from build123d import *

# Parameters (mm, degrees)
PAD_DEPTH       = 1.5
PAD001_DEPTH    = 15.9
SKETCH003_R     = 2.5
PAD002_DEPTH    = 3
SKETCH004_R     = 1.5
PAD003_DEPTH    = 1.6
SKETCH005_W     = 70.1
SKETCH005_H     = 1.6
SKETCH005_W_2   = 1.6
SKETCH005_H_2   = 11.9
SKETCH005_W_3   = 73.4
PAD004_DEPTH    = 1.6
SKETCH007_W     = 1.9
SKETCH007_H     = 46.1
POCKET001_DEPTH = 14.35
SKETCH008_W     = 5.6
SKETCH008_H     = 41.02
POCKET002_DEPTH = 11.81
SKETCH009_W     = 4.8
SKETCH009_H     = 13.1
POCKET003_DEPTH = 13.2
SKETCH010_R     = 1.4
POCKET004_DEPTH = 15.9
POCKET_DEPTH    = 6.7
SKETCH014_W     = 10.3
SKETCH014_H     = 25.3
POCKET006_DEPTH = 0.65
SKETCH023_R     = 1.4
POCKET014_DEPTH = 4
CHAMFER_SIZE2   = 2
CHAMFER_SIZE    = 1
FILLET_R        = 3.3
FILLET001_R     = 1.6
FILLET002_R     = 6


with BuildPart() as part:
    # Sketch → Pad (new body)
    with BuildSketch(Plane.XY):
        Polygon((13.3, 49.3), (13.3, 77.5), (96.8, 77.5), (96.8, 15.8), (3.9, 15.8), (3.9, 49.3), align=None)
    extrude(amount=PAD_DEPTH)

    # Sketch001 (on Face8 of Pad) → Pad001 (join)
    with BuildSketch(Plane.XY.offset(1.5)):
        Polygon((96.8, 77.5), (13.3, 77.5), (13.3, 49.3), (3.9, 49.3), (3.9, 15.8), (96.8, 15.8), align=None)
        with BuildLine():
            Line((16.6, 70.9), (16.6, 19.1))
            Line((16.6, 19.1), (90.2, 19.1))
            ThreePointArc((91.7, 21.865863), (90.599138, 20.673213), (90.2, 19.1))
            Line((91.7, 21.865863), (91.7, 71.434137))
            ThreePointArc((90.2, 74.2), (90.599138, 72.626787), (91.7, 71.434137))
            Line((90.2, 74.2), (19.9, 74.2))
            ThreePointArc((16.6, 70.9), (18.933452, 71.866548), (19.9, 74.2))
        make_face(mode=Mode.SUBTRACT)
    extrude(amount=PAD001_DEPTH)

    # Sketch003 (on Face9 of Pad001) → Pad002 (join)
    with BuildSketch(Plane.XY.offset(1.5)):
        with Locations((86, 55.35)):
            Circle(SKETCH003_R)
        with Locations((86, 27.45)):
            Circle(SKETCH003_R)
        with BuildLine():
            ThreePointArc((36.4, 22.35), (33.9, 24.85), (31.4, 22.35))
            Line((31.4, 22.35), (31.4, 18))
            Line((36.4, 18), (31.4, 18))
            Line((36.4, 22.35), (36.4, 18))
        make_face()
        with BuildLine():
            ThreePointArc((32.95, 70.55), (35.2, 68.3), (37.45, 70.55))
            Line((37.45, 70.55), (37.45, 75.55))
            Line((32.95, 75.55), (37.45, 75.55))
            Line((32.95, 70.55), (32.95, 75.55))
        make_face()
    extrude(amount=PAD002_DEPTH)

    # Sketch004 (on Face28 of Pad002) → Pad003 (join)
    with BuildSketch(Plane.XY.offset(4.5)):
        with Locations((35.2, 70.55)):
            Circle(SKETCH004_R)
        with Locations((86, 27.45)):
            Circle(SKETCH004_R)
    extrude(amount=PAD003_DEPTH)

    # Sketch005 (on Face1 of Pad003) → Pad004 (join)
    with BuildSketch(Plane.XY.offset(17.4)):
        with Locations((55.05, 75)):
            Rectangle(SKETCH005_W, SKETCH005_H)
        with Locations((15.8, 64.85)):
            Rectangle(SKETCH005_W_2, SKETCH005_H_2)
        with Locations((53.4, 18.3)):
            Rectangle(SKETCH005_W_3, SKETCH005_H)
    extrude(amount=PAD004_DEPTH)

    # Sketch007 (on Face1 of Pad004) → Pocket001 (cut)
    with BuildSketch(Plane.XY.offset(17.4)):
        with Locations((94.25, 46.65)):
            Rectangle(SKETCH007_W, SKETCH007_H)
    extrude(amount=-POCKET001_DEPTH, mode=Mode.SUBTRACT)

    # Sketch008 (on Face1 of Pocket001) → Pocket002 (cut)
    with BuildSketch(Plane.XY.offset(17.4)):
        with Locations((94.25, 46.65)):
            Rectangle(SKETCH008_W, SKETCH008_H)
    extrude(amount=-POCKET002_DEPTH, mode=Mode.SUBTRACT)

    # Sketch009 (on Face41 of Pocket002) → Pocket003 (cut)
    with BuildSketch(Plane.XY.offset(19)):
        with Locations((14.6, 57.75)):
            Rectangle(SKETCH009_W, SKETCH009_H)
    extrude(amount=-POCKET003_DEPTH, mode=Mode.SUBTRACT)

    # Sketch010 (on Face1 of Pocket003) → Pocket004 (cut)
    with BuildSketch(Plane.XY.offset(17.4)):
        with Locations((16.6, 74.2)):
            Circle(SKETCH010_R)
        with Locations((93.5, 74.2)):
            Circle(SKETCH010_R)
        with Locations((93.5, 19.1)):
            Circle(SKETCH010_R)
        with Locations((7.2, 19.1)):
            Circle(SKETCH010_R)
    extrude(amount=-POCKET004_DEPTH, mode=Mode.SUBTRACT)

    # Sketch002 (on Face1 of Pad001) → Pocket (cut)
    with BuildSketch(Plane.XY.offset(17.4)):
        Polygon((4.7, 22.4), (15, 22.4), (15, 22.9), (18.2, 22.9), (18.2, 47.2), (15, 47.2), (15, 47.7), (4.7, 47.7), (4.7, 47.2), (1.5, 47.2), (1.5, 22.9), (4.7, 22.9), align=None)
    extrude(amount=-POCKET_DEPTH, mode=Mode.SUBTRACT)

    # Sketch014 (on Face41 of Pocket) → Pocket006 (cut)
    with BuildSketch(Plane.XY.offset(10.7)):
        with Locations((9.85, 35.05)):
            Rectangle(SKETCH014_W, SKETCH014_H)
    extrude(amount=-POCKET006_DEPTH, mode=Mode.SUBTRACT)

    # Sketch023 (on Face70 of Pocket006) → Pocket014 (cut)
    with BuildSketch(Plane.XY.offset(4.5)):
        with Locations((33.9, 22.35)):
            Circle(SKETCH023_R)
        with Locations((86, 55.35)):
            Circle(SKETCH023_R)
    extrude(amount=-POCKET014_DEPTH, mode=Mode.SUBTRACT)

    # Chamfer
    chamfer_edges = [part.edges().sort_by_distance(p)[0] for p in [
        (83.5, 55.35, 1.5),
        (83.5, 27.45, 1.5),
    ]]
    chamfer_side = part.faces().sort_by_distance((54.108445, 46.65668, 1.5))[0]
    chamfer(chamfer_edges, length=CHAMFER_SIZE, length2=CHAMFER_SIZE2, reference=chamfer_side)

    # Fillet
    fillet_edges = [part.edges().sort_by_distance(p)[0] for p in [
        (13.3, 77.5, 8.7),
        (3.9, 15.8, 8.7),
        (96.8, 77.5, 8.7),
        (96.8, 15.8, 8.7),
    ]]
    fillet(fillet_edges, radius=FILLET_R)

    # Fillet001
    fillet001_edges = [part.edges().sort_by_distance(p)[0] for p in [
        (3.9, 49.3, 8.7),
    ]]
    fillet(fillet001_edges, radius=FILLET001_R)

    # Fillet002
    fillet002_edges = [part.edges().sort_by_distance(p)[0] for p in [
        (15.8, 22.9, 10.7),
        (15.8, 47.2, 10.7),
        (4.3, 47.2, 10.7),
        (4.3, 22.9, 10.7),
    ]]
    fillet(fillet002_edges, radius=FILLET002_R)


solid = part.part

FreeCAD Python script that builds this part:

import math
import FreeCAD as App
import Part
import Sketcher


def edges_at(feature, points):
    """Names of the edges that pass closest to the given points."""
    edges = feature.Shape.Edges
    near = lambda p: min(range(len(edges)), key=lambda i: edges[i].distToShape(Part.Vertex(*p))[0])
    return sorted({f"Edge{near(p) + 1}" for p in points})


def add_polygon(sketch, points):
    """Adds a closed chain of lines whose ends are joined by coincident constraints."""
    first, n = sketch.GeometryCount, len(points)
    for a, b in zip(points, points[1:] + points[:1]):
        sketch.addGeometry(Part.LineSegment(App.Vector(*a, 0), App.Vector(*b, 0)), False)
    for i in range(n):
        sketch.addConstraint(Sketcher.Constraint("Coincident", first + i, 2, first + (i + 1) % n, 1))

doc = App.newDocument("Part")
params = doc.addObject("Spreadsheet::Sheet", "Params")
for row, (alias, value) in enumerate([
    ("sketch1_width", "9.4 mm"),
    ("sketch1_width2", "92.9 mm"),
    ("sketch1_height", "28.2 mm"),
    ("sketch1_height2", "33.5 mm"),
    ("pad1_length", "1.5 mm"),
    ("sketch2_radius", "3.300001 mm"),
    ("sketch2_width", "83.5 mm"),
    ("sketch2_width2", "9.4 mm"),
    ("sketch2_width3", "70.3 mm"),
    ("sketch2_height", "28.2 mm"),
    ("pad2_length", "15.9 mm"),
    ("sketch3_diameter", "5 mm"),
    ("sketch3_radius", "2.25 mm"),
    ("sketch3_height", "4.35 mm"),
    ("pad3_length", "3 mm"),
    ("sketch4_diameter", "3 mm"),
    ("pad4_length", "1.6 mm"),
    ("sketch5_width", "70.1 mm"),
    ("sketch5_width2", "1.6 mm"),
    ("sketch5_width3", "73.4 mm"),
    ("sketch5_height", "11.9 mm"),
    ("pad5_length", "1.6 mm"),
    ("sketch6_width", "1.9 mm"),
    ("sketch6_height", "46.1 mm"),
    ("pocket1_length", "14.35 mm"),
    ("sketch7_width", "5.6 mm"),
    ("sketch7_height", "41.02 mm"),
    ("pocket2_length", "11.81 mm"),
    ("sketch8_width", "4.8 mm"),
    ("sketch8_height", "13.1 mm"),
    ("pocket3_length", "13.2 mm"),
    ("sketch9_diameter", "2.8 mm"),
    ("pocket4_length", "15.9 mm"),
    ("sketch10_width", "10.3 mm"),
    ("sketch10_width2", "3.2 mm"),
    ("sketch10_height", "0.5 mm"),
    ("sketch10_height2", "24.3 mm"),
    ("pocket5_length", "6.7 mm"),
    ("sketch11_width", "10.3 mm"),
    ("sketch11_height", "25.3 mm"),
    ("pocket6_length", "0.65 mm"),
    ("sketch12_diameter", "2.8 mm"),
    ("pocket7_length", "4 mm"),
    ("chamfer_size", "1 mm"),
    ("chamfer_size2", "2 mm"),
    ("fillet_radius", "3.3 mm"),
    ("fillet2_radius", "1.6 mm"),
    ("fillet3_radius", "6 mm"),
], start=1):
    params.set(f"A{row}", alias)
    params.set(f"B{row}", "=" + value)
    params.setAlias(f"B{row}", alias)

body = doc.addObject("PartDesign::Body", "Body")

# Sketch on XY plane
sketch1 = body.newObject("Sketcher::SketchObject", "Sketch")
sketch1.AttachmentSupport = (doc.getObject("XY_Plane"), [""])
sketch1.MapMode = "FlatFace"
add_polygon(sketch1, [(13, 78), (13, 49), (4, 49), (4, 16), (97, 16), (97, 78)])  # lines 0-5
sketch1.addConstraint(Sketcher.Constraint("Vertical", 0))
sketch1.addConstraint(Sketcher.Constraint("Horizontal", 1))
sketch1.addConstraint(Sketcher.Constraint("Vertical", 2))
sketch1.addConstraint(Sketcher.Constraint("Horizontal", 3))
sketch1.addConstraint(Sketcher.Constraint("Vertical", 4))
sketch1.addConstraint(Sketcher.Constraint("Horizontal", 5))
sketch1.addConstraint(Sketcher.Constraint("DistanceX", 1, 2, 1, 1, 9.4))
sketch1.addConstraint(Sketcher.Constraint("DistanceX", 3, 1, 3, 2, 92.9))
sketch1.addConstraint(Sketcher.Constraint("DistanceY", 0, 2, 0, 1, 28.2))
sketch1.addConstraint(Sketcher.Constraint("DistanceY", 2, 2, 2, 1, 33.5))
sketch1.addConstraint(Sketcher.Constraint("DistanceX", -1, 1, 0, 2, 13.3))
sketch1.addConstraint(Sketcher.Constraint("DistanceY", -1, 1, 0, 2, 49.3))
sketch1.setExpression("Constraints[12]", "Params.sketch1_width")
sketch1.setExpression("Constraints[13]", "Params.sketch1_width2")
sketch1.setExpression("Constraints[14]", "Params.sketch1_height")
sketch1.setExpression("Constraints[15]", "Params.sketch1_height2")
pad1 = body.newObject("PartDesign::Pad", "Pad")
pad1.Profile = sketch1
pad1.setExpression("Length", "Params.pad1_length")

# Sketch on XY plane
sketch2 = body.newObject("Sketcher::SketchObject", "Sketch001")
sketch2.AttachmentSupport = (doc.getObject("XY_Plane"), [""])
sketch2.MapMode = "FlatFace"
sketch2.AttachmentOffset = App.Placement(App.Vector(0, 0, 1.5), App.Rotation())
add_polygon(sketch2, [(96.8, 77.5), (13.3, 77.5), (13.3, 49.3), (3.9, 49.3), (3.9, 15.8), (96.8, 15.8)])  # lines 0-5
sketch2.addGeometry(Part.LineSegment(App.Vector(16.6, 19.1, 0), App.Vector(16.6, 70.9, 0)), False)  # 6
sketch2.addGeometry(Part.ArcOfCircle(Part.Circle(App.Vector(16.6, 74.2, 0), App.Vector(0, 0, 1), 3.3), math.radians(-90), math.radians(0)), False)  # 7
sketch2.addGeometry(Part.LineSegment(App.Vector(19.9, 74.2, 0), App.Vector(90.2, 74.2, 0)), False)  # 8
sketch2.addGeometry(Part.ArcOfCircle(Part.Circle(App.Vector(93.5, 74.2, 0), App.Vector(0, 0, 1), 3.3), math.radians(-180), math.radians(-123)), False)  # 9
sketch2.addGeometry(Part.LineSegment(App.Vector(91.7, 71.4, 0), App.Vector(91.7, 21.9, 0)), False)  # 10
sketch2.addGeometry(Part.ArcOfCircle(Part.Circle(App.Vector(93.5, 19.1, 0), App.Vector(0, 0, 1), 3.3), math.radians(123), math.radians(180)), False)  # 11
sketch2.addGeometry(Part.LineSegment(App.Vector(90.2, 19.1, 0), App.Vector(16.6, 19.1, 0)), False)  # 12
sketch2.addConstraint(Sketcher.Constraint("Coincident", 6, 2, 7, 1))
sketch2.addConstraint(Sketcher.Constraint("Coincident", 7, 2, 8, 1))
sketch2.addConstraint(Sketcher.Constraint("Coincident", 8, 2, 9, 1))
sketch2.addConstraint(Sketcher.Constraint("Coincident", 9, 2, 10, 1))
sketch2.addConstraint(Sketcher.Constraint("Coincident", 10, 2, 11, 1))
sketch2.addConstraint(Sketcher.Constraint("Coincident", 11, 2, 12, 1))
sketch2.addConstraint(Sketcher.Constraint("Coincident", 12, 2, 6, 1))
sketch2.addConstraint(Sketcher.Constraint("Horizontal", 0))
sketch2.addConstraint(Sketcher.Constraint("Vertical", 1))
sketch2.addConstraint(Sketcher.Constraint("Horizontal", 2))
sketch2.addConstraint(Sketcher.Constraint("Vertical", 3))
sketch2.addConstraint(Sketcher.Constraint("Horizontal", 4))
sketch2.addConstraint(Sketcher.Constraint("Vertical", 5))
sketch2.addConstraint(Sketcher.Constraint("Vertical", 6))
sketch2.addConstraint(Sketcher.Constraint("Horizontal", 8))
sketch2.addConstraint(Sketcher.Constraint("Vertical", 10))
sketch2.addConstraint(Sketcher.Constraint("Horizontal", 12))
sketch2.addConstraint(Sketcher.Constraint("Equal", 7, 9))
sketch2.addConstraint(Sketcher.Constraint("Equal", 9, 11))
sketch2.addConstraint(Sketcher.Constraint("Horizontal", 7, 3, 9, 3))
sketch2.addConstraint(Sketcher.Constraint("Horizontal", 9, 3, 7, 2))
sketch2.addConstraint(Sketcher.Constraint("Vertical", 9, 3, 11, 3))
sketch2.addConstraint(Sketcher.Constraint("Vertical", 7, 3, 6, 2))
sketch2.addConstraint(Sketcher.Constraint("Radius", 7, 3.300001))
sketch2.addConstraint(Sketcher.Constraint("DistanceX", 0, 2, 0, 1, 83.5))
sketch2.addConstraint(Sketcher.Constraint("DistanceX", 2, 2, 2, 1, 9.4))
sketch2.addConstraint(Sketcher.Constraint("DistanceX", 8, 1, 8, 2, 70.3))
sketch2.addConstraint(Sketcher.Constraint("DistanceY", 1, 2, 1, 1, 28.2))
sketch2.addConstraint(Sketcher.Constraint("DistanceY", 3, 2, 3, 1, 33.5))
sketch2.addConstraint(Sketcher.Constraint("DistanceY", 6, 1, 6, 2, 51.8))
sketch2.addConstraint(Sketcher.Constraint("DistanceX", 2, 2, 7, 2, 16.0))
sketch2.addConstraint(Sketcher.Constraint("DistanceX", -1, 1, 7, 3, 16.599999))
sketch2.addConstraint(Sketcher.Constraint("DistanceY", -1, 1, 7, 3, 74.200001))
sketch2.addConstraint(Sketcher.Constraint("DistanceY", -1, 1, 11, 3, 19.1))
sketch2.addConstraint(Sketcher.Constraint("DistanceY", -1, 1, 0, 2, 77.5))
sketch2.addConstraint(Sketcher.Constraint("DistanceX", -1, 1, 9, 2, 91.7))
sketch2.setExpression("Constraints[29]", "Params.sketch2_radius")
sketch2.setExpression("Constraints[30]", "Params.sketch2_width")
sketch2.setExpression("Constraints[31]", "Params.sketch2_width2")
sketch2.setExpression("Constraints[32]", "Params.sketch2_width3")
sketch2.setExpression("Constraints[33]", "Params.sketch2_height")
pad2 = body.newObject("PartDesign::Pad", "Pad001")
pad2.Profile = sketch2
pad2.setExpression("Length", "Params.pad2_length")

# Sketch on XY plane
sketch3 = body.newObject("Sketcher::SketchObject", "Sketch002")
sketch3.AttachmentSupport = (doc.getObject("XY_Plane"), [""])
sketch3.MapMode = "FlatFace"
sketch3.AttachmentOffset = App.Placement(App.Vector(0, 0, 1.5), App.Rotation())
sketch3.addGeometry(Part.Circle(App.Vector(86, 55.4, 0), App.Vector(0, 0, 1), 2.5), False)
sketch3.addGeometry(Part.Circle(App.Vector(86, 27.4, 0), App.Vector(0, 0, 1), 2.5), False)
sketch3.addGeometry(Part.ArcOfCircle(Part.Circle(App.Vector(33.9, 22.4, 0), App.Vector(0, 0, 1), 2.5), math.radians(0), math.radians(180)), False)
sketch3.addGeometry(Part.LineSegment(App.Vector(31.4, 22.4, 0), App.Vector(31.4, 18, 0)), False)
sketch3.addGeometry(Part.LineSegment(App.Vector(31.4, 18, 0), App.Vector(36.4, 18, 0)), False)
sketch3.addGeometry(Part.LineSegment(App.Vector(36.4, 18, 0), App.Vector(36.4, 22.4, 0)), False)
sketch3.addGeometry(Part.ArcOfCircle(Part.Circle(App.Vector(35.2, 70.5, 0), App.Vector(0, 0, 1), 2.2), math.radians(180), math.radians(360)), False)
sketch3.addGeometry(Part.LineSegment(App.Vector(37.5, 70.5, 0), App.Vector(37.5, 75.5, 0)), False)
sketch3.addGeometry(Part.LineSegment(App.Vector(37.5, 75.5, 0), App.Vector(33, 75.5, 0)), False)
sketch3.addGeometry(Part.LineSegment(App.Vector(33, 75.5, 0), App.Vector(33, 70.5, 0)), False)
sketch3.addConstraint(Sketcher.Constraint("Tangent", 2, 2, 3, 1))
sketch3.addConstraint(Sketcher.Constraint("Coincident", 3, 2, 4, 1))
sketch3.addConstraint(Sketcher.Constraint("Coincident", 4, 2, 5, 1))
sketch3.addConstraint(Sketcher.Constraint("Tangent", 5, 2, 2, 1))
sketch3.addConstraint(Sketcher.Constraint("Tangent", 6, 2, 7, 1))
sketch3.addConstraint(Sketcher.Constraint("Coincident", 7, 2, 8, 1))
sketch3.addConstraint(Sketcher.Constraint("Coincident", 8, 2, 9, 1))
sketch3.addConstraint(Sketcher.Constraint("Tangent", 9, 2, 6, 1))
sketch3.addConstraint(Sketcher.Constraint("Vertical", 3))
sketch3.addConstraint(Sketcher.Constraint("Horizontal", 4))
sketch3.addConstraint(Sketcher.Constraint("Vertical", 5))
sketch3.addConstraint(Sketcher.Constraint("Vertical", 7))
sketch3.addConstraint(Sketcher.Constraint("Horizontal", 8))
sketch3.addConstraint(Sketcher.Constraint("Vertical", 9))
sketch3.addConstraint(Sketcher.Constraint("Equal", 0, 1))
sketch3.addConstraint(Sketcher.Constraint("Equal", 1, 2))
sketch3.addConstraint(Sketcher.Constraint("Vertical", 0, 3, 1, 3))
sketch3.addConstraint(Sketcher.Constraint("Equal", 4, 7))
sketch3.addConstraint(Sketcher.Constraint("Diameter", 0, 5.0))
sketch3.addConstraint(Sketcher.Constraint("Radius", 6, 2.25))
sketch3.addConstraint(Sketcher.Constraint("DistanceX", -1, 1, 0, 3, 86.0))
sketch3.addConstraint(Sketcher.Constraint("DistanceY", -1, 1, 3, 2, 18.0))
sketch3.addConstraint(Sketcher.Constraint("DistanceY", 2, 3, 0, 3, 33.0))
sketch3.addConstraint(Sketcher.Constraint("DistanceY", 3, 2, 3, 1, 4.35))
sketch3.addConstraint(Sketcher.Constraint("DistanceX", -1, 1, 2, 3, 33.9))
sketch3.addConstraint(Sketcher.Constraint("DistanceX", -1, 1, 6, 3, 35.2))
sketch3.addConstraint(Sketcher.Constraint("DistanceY", 1, 3, 0, 3, 27.9))
sketch3.addConstraint(Sketcher.Constraint("DistanceY", 2, 3, 6, 3, 48.2))
sketch3.setExpression("Constraints[18]", "Params.sketch3_diameter")
sketch3.setExpression("Constraints[19]", "Params.sketch3_radius")
sketch3.setExpression("Constraints[23]", "Params.sketch3_height")
pad3 = body.newObject("PartDesign::Pad", "Pad002")
pad3.Profile = sketch3
pad3.setExpression("Length", "Params.pad3_length")

# Sketch on XY plane
sketch4 = body.newObject("Sketcher::SketchObject", "Sketch003")
sketch4.AttachmentSupport = (doc.getObject("XY_Plane"), [""])
sketch4.MapMode = "FlatFace"
sketch4.AttachmentOffset = App.Placement(App.Vector(0, 0, 4.5), App.Rotation())
sketch4.addGeometry(Part.Circle(App.Vector(35.2, 70.5, 0), App.Vector(0, 0, 1), 1.5), False)
sketch4.addGeometry(Part.Circle(App.Vector(86, 27.4, 0), App.Vector(0, 0, 1), 1.5), False)
sketch4.addConstraint(Sketcher.Constraint("Equal", 0, 1))
sketch4.addConstraint(Sketcher.Constraint("Diameter", 0, 3.0))
sketch4.addConstraint(Sketcher.Constraint("DistanceX", -1, 1, 1, 3, 86.0))
sketch4.addConstraint(Sketcher.Constraint("DistanceX", -1, 1, 0, 3, 35.2))
sketch4.addConstraint(Sketcher.Constraint("DistanceY", 1, 3, 0, 3, 43.1))
sketch4.addConstraint(Sketcher.Constraint("DistanceY", -1, 1, 0, 3, 70.55))
sketch4.setExpression("Constraints[1]", "Params.sketch4_diameter")
pad4 = body.newObject("PartDesign::Pad", "Pad003")
pad4.Profile = sketch4
pad4.setExpression("Length", "Params.pad4_length")

# Sketch on XY plane
sketch5 = body.newObject("Sketcher::SketchObject", "Sketch004")
sketch5.AttachmentSupport = (doc.getObject("XY_Plane"), [""])
sketch5.MapMode = "FlatFace"
sketch5.AttachmentOffset = App.Placement(App.Vector(0, 0, 17.4), App.Rotation())
add_polygon(sketch5, [(20, 75.8), (20, 74.2), (90.1, 74.2), (90.1, 75.8)])  # lines 0-3
add_polygon(sketch5, [(15, 70.8), (15, 58.9), (16.6, 58.9), (16.6, 70.8)])  # lines 4-7
add_polygon(sketch5, [(16.7, 19.1), (16.7, 17.5), (90.1, 17.5), (90.1, 19.1)])  # lines 8-11
sketch5.addConstraint(Sketcher.Constraint("Vertical", 0))
sketch5.addConstraint(Sketcher.Constraint("Horizontal", 1))
sketch5.addConstraint(Sketcher.Constraint("Vertical", 2))
sketch5.addConstraint(Sketcher.Constraint("Horizontal", 3))
sketch5.addConstraint(Sketcher.Constraint("Vertical", 4))
sketch5.addConstraint(Sketcher.Constraint("Horizontal", 5))
sketch5.addConstraint(Sketcher.Constraint("Vertical", 6))
sketch5.addConstraint(Sketcher.Constraint("Horizontal", 7))
sketch5.addConstraint(Sketcher.Constraint("Vertical", 8))
sketch5.addConstraint(Sketcher.Constraint("Horizontal", 9))
sketch5.addConstraint(Sketcher.Constraint("Vertical", 10))
sketch5.addConstraint(Sketcher.Constraint("Horizontal", 11))
sketch5.addConstraint(Sketcher.Constraint("Vertical", 2, 2, 9, 2))
sketch5.addConstraint(Sketcher.Constraint("Equal", 7, 0))
sketch5.addConstraint(Sketcher.Constraint("Equal", 2, 8))
sketch5.addConstraint(Sketcher.Constraint("DistanceX", 1, 1, 1, 2, 70.1))
sketch5.addConstraint(Sketcher.Constraint("DistanceX", 5, 1, 5, 2, 1.6))
sketch5.addConstraint(Sketcher.Constraint("DistanceX", 9, 1, 9, 2, 73.4))
sketch5.addConstraint(Sketcher.Constraint("DistanceY", 4, 2, 4, 1, 11.9))
sketch5.addConstraint(Sketcher.Constraint("DistanceX", -1, 1, 0, 2, 20.0))
sketch5.addConstraint(Sketcher.Constraint("DistanceX", -1, 1, 4, 2, 15.0))
sketch5.addConstraint(Sketcher.Constraint("DistanceY", 6, 2, 3, 2, 5.0))
sketch5.addConstraint(Sketcher.Constraint("DistanceY", -1, 1, 0, 2, 74.2))
sketch5.addConstraint(Sketcher.Constraint("DistanceY", -1, 1, 8, 2, 17.5))
sketch5.setExpression("Constraints[27]", "Params.sketch5_width")
sketch5.setExpression("Constraints[28]", "Params.sketch5_width2")
sketch5.setExpression("Constraints[29]", "Params.sketch5_width3")
sketch5.setExpression("Constraints[30]", "Params.sketch5_height")
pad5 = body.newObject("PartDesign::Pad", "Pad004")
pad5.Profile = sketch5
pad5.setExpression("Length", "Params.pad5_length")

# Sketch on XY plane
sketch6 = body.newObject("Sketcher::SketchObject", "Sketch005")
sketch6.AttachmentSupport = (doc.getObject("XY_Plane"), [""])
sketch6.MapMode = "FlatFace"
sketch6.AttachmentOffset = App.Placement(App.Vector(0, 0, 17.4), App.Rotation())
add_polygon(sketch6, [(93.3, 69.7), (93.3, 23.6), (95.2, 23.6), (95.2, 69.7)])  # lines 0-3
sketch6.addConstraint(Sketcher.Constraint("Vertical", 0))
sketch6.addConstraint(Sketcher.Constraint("Horizontal", 1))
sketch6.addConstraint(Sketcher.Constraint("Vertical", 2))
sketch6.addConstraint(Sketcher.Constraint("Horizontal", 3))
sketch6.addConstraint(Sketcher.Constraint("DistanceX", 1, 1, 1, 2, 1.9))
sketch6.addConstraint(Sketcher.Constraint("DistanceY", 0, 2, 0, 1, 46.1))
sketch6.addConstraint(Sketcher.Constraint("DistanceX", -1, 1, 0, 2, 93.3))
sketch6.addConstraint(Sketcher.Constraint("DistanceY", -1, 1, 0, 2, 23.6))
sketch6.setExpression("Constraints[8]", "Params.sketch6_width")
sketch6.setExpression("Constraints[9]", "Params.sketch6_height")
pocket1 = body.newObject("PartDesign::Pocket", "Pocket")
pocket1.Profile = sketch6
pocket1.setExpression("Length", "Params.pocket1_length")

# Sketch on XY plane
sketch7 = body.newObject("Sketcher::SketchObject", "Sketch006")
sketch7.AttachmentSupport = (doc.getObject("XY_Plane"), [""])
sketch7.MapMode = "FlatFace"
sketch7.AttachmentOffset = App.Placement(App.Vector(0, 0, 17.4), App.Rotation())
add_polygon(sketch7, [(91, 67), (91, 26), (97, 26), (97, 67)])  # lines 0-3
sketch7.addConstraint(Sketcher.Constraint("Vertical", 0))
sketch7.addConstraint(Sketcher.Constraint("Horizontal", 1))
sketch7.addConstraint(Sketcher.Constraint("Vertical", 2))
sketch7.addConstraint(Sketcher.Constraint("Horizontal", 3))
sketch7.addConstraint(Sketcher.Constraint("DistanceX", 1, 1, 1, 2, 5.6))
sketch7.addConstraint(Sketcher.Constraint("DistanceY", 0, 2, 0, 1, 41.02))
sketch7.addConstraint(Sketcher.Constraint("DistanceX", -1, 1, 0, 2, 91.45))
sketch7.addConstraint(Sketcher.Constraint("DistanceY", -1, 1, 0, 2, 26.14))
sketch7.setExpression("Constraints[8]", "Params.sketch7_width")
sketch7.setExpression("Constraints[9]", "Params.sketch7_height")
pocket2 = body.newObject("PartDesign::Pocket", "Pocket001")
pocket2.Profile = sketch7
pocket2.setExpression("Length", "Params.pocket2_length")

# Sketch on XY plane
sketch8 = body.newObject("Sketcher::SketchObject", "Sketch007")
sketch8.AttachmentSupport = (doc.getObject("XY_Plane"), [""])
sketch8.MapMode = "FlatFace"
sketch8.AttachmentOffset = App.Placement(App.Vector(0, 0, 19), App.Rotation())
add_polygon(sketch8, [(12.2, 64.3), (12.2, 51.2), (17, 51.2), (17, 64.3)])  # lines 0-3
sketch8.addConstraint(Sketcher.Constraint("Vertical", 0))
sketch8.addConstraint(Sketcher.Constraint("Horizontal", 1))
sketch8.addConstraint(Sketcher.Constraint("Vertical", 2))
sketch8.addConstraint(Sketcher.Constraint("Horizontal", 3))
sketch8.addConstraint(Sketcher.Constraint("DistanceX", 1, 1, 1, 2, 4.8))
sketch8.addConstraint(Sketcher.Constraint("DistanceY", 0, 2, 0, 1, 13.1))
sketch8.addConstraint(Sketcher.Constraint("DistanceX", -1, 1, 1, 2, 17.0))
sketch8.addConstraint(Sketcher.Constraint("DistanceY", -1, 1, 0, 2, 51.2))
sketch8.setExpression("Constraints[8]", "Params.sketch8_width")
sketch8.setExpression("Constraints[9]", "Params.sketch8_height")
pocket3 = body.newObject("PartDesign::Pocket", "Pocket002")
pocket3.Profile = sketch8
pocket3.setExpression("Length", "Params.pocket3_length")

# Sketch on XY plane
sketch9 = body.newObject("Sketcher::SketchObject", "Sketch008")
sketch9.AttachmentSupport = (doc.getObject("XY_Plane"), [""])
sketch9.MapMode = "FlatFace"
sketch9.AttachmentOffset = App.Placement(App.Vector(0, 0, 17.4), App.Rotation())
sketch9.addGeometry(Part.Circle(App.Vector(16.6, 74.2, 0), App.Vector(0, 0, 1), 1.4), False)
sketch9.addGeometry(Part.Circle(App.Vector(93.5, 74.2, 0), App.Vector(0, 0, 1), 1.4), False)
sketch9.addGeometry(Part.Circle(App.Vector(93.5, 19.1, 0), App.Vector(0, 0, 1), 1.4), False)
sketch9.addGeometry(Part.Circle(App.Vector(7.2, 19.1, 0), App.Vector(0, 0, 1), 1.4), False)
sketch9.addConstraint(Sketcher.Constraint("Equal", 0, 1))
sketch9.addConstraint(Sketcher.Constraint("Equal", 1, 2))
sketch9.addConstraint(Sketcher.Constraint("Equal", 2, 3))
sketch9.addConstraint(Sketcher.Constraint("Horizontal", 0, 3, 1, 3))
sketch9.addConstraint(Sketcher.Constraint("Horizontal", 2, 3, 3, 3))
sketch9.addConstraint(Sketcher.Constraint("Vertical", 1, 3, 2, 3))
sketch9.addConstraint(Sketcher.Constraint("Diameter", 0, 2.8))
sketch9.addConstraint(Sketcher.Constraint("DistanceX", -1, 1, 0, 3, 16.6))
sketch9.addConstraint(Sketcher.Constraint("DistanceY", -1, 1, 0, 3, 74.2))
sketch9.addConstraint(Sketcher.Constraint("DistanceX", -1, 1, 1, 3, 93.5))
sketch9.addConstraint(Sketcher.Constraint("DistanceY", -1, 1, 2, 3, 19.1))
sketch9.addConstraint(Sketcher.Constraint("DistanceX", -1, 1, 3, 3, 7.2))
sketch9.setExpression("Constraints[6]", "Params.sketch9_diameter")
pocket4 = body.newObject("PartDesign::Pocket", "Pocket003")
pocket4.Profile = sketch9
pocket4.setExpression("Length", "Params.pocket4_length")

# Sketch on XY plane
sketch10 = body.newObject("Sketcher::SketchObject", "Sketch009")
sketch10.AttachmentSupport = (doc.getObject("XY_Plane"), [""])
sketch10.MapMode = "FlatFace"
sketch10.AttachmentOffset = App.Placement(App.Vector(0, 0, 17.4), App.Rotation())
add_polygon(sketch10, [(4.7, 22.4), (15, 22.4), (15, 22.9), (18.2, 22.9), (18.2, 47.2), (15, 47.2), (15, 47.7), (4.7, 47.7), (4.7, 47.2), (1.5, 47.2), (1.5, 22.9), (4.7, 22.9)])  # lines 0-11
sketch10.addConstraint(Sketcher.Constraint("Horizontal", 0))
sketch10.addConstraint(Sketcher.Constraint("Vertical", 1))
sketch10.addConstraint(Sketcher.Constraint("Horizontal", 2))
sketch10.addConstraint(Sketcher.Constraint("Vertical", 3))
sketch10.addConstraint(Sketcher.Constraint("Horizontal", 4))
sketch10.addConstraint(Sketcher.Constraint("Vertical", 5))
sketch10.addConstraint(Sketcher.Constraint("Horizontal", 6))
sketch10.addConstraint(Sketcher.Constraint("Vertical", 7))
sketch10.addConstraint(Sketcher.Constraint("Horizontal", 8))
sketch10.addConstraint(Sketcher.Constraint("Vertical", 9))
sketch10.addConstraint(Sketcher.Constraint("Horizontal", 10))
sketch10.addConstraint(Sketcher.Constraint("Vertical", 11))
sketch10.addConstraint(Sketcher.Constraint("Horizontal", 4, 2, 7, 2))
sketch10.addConstraint(Sketcher.Constraint("Horizontal", 2, 2, 9, 2))
sketch10.addConstraint(Sketcher.Constraint("Vertical", 1, 2, 4, 2))
sketch10.addConstraint(Sketcher.Constraint("Vertical", 7, 2, 10, 2))
sketch10.addConstraint(Sketcher.Constraint("Equal", 4, 8))
sketch10.addConstraint(Sketcher.Constraint("Equal", 1, 5))
sketch10.addConstraint(Sketcher.Constraint("DistanceX", 0, 1, 0, 2, 10.3))
sketch10.addConstraint(Sketcher.Constraint("DistanceX", 2, 1, 2, 2, 3.2))
sketch10.addConstraint(Sketcher.Constraint("DistanceY", 1, 1, 1, 2, 0.5))
sketch10.addConstraint(Sketcher.Constraint("DistanceY", 3, 1, 3, 2, 24.3))
sketch10.addConstraint(Sketcher.Constraint("DistanceX", -1, 1, 0, 2, 15.0))
sketch10.addConstraint(Sketcher.Constraint("DistanceY", -1, 1, 0, 2, 22.4))
sketch10.setExpression("Constraints[30]", "Params.sketch10_width")
sketch10.setExpression("Constraints[31]", "Params.sketch10_width2")
sketch10.setExpression("Constraints[32]", "Params.sketch10_height")
sketch10.setExpression("Constraints[33]", "Params.sketch10_height2")
pocket5 = body.newObject("PartDesign::Pocket", "Pocket004")
pocket5.Profile = sketch10
pocket5.setExpression("Length", "Params.pocket5_length")

# Sketch on XY plane
sketch11 = body.newObject("Sketcher::SketchObject", "Sketch010")
sketch11.AttachmentSupport = (doc.getObject("XY_Plane"), [""])
sketch11.MapMode = "FlatFace"
sketch11.AttachmentOffset = App.Placement(App.Vector(0, 0, 10.7), App.Rotation())
add_polygon(sketch11, [(5, 48), (5, 22), (15, 22), (15, 48)])  # lines 0-3
sketch11.addConstraint(Sketcher.Constraint("Vertical", 0))
sketch11.addConstraint(Sketcher.Constraint("Horizontal", 1))
sketch11.addConstraint(Sketcher.Constraint("Vertical", 2))
sketch11.addConstraint(Sketcher.Constraint("Horizontal", 3))
sketch11.addConstraint(Sketcher.Constraint("DistanceX", 1, 1, 1, 2, 10.3))
sketch11.addConstraint(Sketcher.Constraint("DistanceY", 0, 2, 0, 1, 25.3))
sketch11.addConstraint(Sketcher.Constraint("DistanceX", -1, 1, 1, 2, 15.0))
sketch11.addConstraint(Sketcher.Constraint("DistanceY", -1, 1, 0, 2, 22.4))
sketch11.setExpression("Constraints[8]", "Params.sketch11_width")
sketch11.setExpression("Constraints[9]", "Params.sketch11_height")
pocket6 = body.newObject("PartDesign::Pocket", "Pocket005")
pocket6.Profile = sketch11
pocket6.setExpression("Length", "Params.pocket6_length")

# Sketch on XY plane
sketch12 = body.newObject("Sketcher::SketchObject", "Sketch011")
sketch12.AttachmentSupport = (doc.getObject("XY_Plane"), [""])
sketch12.MapMode = "FlatFace"
sketch12.AttachmentOffset = App.Placement(App.Vector(0, 0, 4.5), App.Rotation())
sketch12.addGeometry(Part.Circle(App.Vector(33.9, 22.4, 0), App.Vector(0, 0, 1), 1.4), False)
sketch12.addGeometry(Part.Circle(App.Vector(86, 55.4, 0), App.Vector(0, 0, 1), 1.4), False)
sketch12.addConstraint(Sketcher.Constraint("Equal", 0, 1))
sketch12.addConstraint(Sketcher.Constraint("Diameter", 0, 2.8))
sketch12.addConstraint(Sketcher.Constraint("DistanceX", -1, 1, 1, 3, 86.0))
sketch12.addConstraint(Sketcher.Constraint("DistanceY", 0, 3, 1, 3, 33.0))
sketch12.addConstraint(Sketcher.Constraint("DistanceX", -1, 1, 0, 3, 33.9))
sketch12.addConstraint(Sketcher.Constraint("DistanceY", -1, 1, 0, 3, 22.35))
sketch12.setExpression("Constraints[1]", "Params.sketch12_diameter")
pocket7 = body.newObject("PartDesign::Pocket", "Pocket006")
pocket7.Profile = sketch12
pocket7.setExpression("Length", "Params.pocket7_length")
doc.recompute()

chamfer = body.newObject("PartDesign::Chamfer", "Chamfer")
chamfer.Base = (pocket7, edges_at(pocket7, [(83.5, 55.35, 1.5), (83.5, 27.45, 1.5)]))
chamfer.ChamferType = "Two distances"
chamfer.setExpression("Size", "Params.chamfer_size")
chamfer.setExpression("Size2", "Params.chamfer_size2")
doc.recompute()

fillet = body.newObject("PartDesign::Fillet", "Fillet")
fillet.Base = (chamfer, edges_at(chamfer, [
    (13.3, 77.5, 8.7),
    (3.9, 15.8, 8.7),
    (96.8, 77.5, 8.7),
    (96.8, 15.8, 8.7),
]))
fillet.setExpression("Radius", "Params.fillet_radius")
doc.recompute()

fillet2 = body.newObject("PartDesign::Fillet", "Fillet001")
fillet2.Base = (fillet, edges_at(fillet, [(3.9, 49.3, 8.7)]))
fillet2.setExpression("Radius", "Params.fillet2_radius")
doc.recompute()

fillet3 = body.newObject("PartDesign::Fillet", "Fillet002")
fillet3.Base = (fillet2, edges_at(fillet2, [
    (15.8, 22.9, 10.7),
    (15.8, 47.2, 10.7),
    (4.3, 47.2, 10.7),
    (4.3, 22.9, 10.7),
]))
fillet3.setExpression("Radius", "Params.fillet3_radius")

doc.recompute()
